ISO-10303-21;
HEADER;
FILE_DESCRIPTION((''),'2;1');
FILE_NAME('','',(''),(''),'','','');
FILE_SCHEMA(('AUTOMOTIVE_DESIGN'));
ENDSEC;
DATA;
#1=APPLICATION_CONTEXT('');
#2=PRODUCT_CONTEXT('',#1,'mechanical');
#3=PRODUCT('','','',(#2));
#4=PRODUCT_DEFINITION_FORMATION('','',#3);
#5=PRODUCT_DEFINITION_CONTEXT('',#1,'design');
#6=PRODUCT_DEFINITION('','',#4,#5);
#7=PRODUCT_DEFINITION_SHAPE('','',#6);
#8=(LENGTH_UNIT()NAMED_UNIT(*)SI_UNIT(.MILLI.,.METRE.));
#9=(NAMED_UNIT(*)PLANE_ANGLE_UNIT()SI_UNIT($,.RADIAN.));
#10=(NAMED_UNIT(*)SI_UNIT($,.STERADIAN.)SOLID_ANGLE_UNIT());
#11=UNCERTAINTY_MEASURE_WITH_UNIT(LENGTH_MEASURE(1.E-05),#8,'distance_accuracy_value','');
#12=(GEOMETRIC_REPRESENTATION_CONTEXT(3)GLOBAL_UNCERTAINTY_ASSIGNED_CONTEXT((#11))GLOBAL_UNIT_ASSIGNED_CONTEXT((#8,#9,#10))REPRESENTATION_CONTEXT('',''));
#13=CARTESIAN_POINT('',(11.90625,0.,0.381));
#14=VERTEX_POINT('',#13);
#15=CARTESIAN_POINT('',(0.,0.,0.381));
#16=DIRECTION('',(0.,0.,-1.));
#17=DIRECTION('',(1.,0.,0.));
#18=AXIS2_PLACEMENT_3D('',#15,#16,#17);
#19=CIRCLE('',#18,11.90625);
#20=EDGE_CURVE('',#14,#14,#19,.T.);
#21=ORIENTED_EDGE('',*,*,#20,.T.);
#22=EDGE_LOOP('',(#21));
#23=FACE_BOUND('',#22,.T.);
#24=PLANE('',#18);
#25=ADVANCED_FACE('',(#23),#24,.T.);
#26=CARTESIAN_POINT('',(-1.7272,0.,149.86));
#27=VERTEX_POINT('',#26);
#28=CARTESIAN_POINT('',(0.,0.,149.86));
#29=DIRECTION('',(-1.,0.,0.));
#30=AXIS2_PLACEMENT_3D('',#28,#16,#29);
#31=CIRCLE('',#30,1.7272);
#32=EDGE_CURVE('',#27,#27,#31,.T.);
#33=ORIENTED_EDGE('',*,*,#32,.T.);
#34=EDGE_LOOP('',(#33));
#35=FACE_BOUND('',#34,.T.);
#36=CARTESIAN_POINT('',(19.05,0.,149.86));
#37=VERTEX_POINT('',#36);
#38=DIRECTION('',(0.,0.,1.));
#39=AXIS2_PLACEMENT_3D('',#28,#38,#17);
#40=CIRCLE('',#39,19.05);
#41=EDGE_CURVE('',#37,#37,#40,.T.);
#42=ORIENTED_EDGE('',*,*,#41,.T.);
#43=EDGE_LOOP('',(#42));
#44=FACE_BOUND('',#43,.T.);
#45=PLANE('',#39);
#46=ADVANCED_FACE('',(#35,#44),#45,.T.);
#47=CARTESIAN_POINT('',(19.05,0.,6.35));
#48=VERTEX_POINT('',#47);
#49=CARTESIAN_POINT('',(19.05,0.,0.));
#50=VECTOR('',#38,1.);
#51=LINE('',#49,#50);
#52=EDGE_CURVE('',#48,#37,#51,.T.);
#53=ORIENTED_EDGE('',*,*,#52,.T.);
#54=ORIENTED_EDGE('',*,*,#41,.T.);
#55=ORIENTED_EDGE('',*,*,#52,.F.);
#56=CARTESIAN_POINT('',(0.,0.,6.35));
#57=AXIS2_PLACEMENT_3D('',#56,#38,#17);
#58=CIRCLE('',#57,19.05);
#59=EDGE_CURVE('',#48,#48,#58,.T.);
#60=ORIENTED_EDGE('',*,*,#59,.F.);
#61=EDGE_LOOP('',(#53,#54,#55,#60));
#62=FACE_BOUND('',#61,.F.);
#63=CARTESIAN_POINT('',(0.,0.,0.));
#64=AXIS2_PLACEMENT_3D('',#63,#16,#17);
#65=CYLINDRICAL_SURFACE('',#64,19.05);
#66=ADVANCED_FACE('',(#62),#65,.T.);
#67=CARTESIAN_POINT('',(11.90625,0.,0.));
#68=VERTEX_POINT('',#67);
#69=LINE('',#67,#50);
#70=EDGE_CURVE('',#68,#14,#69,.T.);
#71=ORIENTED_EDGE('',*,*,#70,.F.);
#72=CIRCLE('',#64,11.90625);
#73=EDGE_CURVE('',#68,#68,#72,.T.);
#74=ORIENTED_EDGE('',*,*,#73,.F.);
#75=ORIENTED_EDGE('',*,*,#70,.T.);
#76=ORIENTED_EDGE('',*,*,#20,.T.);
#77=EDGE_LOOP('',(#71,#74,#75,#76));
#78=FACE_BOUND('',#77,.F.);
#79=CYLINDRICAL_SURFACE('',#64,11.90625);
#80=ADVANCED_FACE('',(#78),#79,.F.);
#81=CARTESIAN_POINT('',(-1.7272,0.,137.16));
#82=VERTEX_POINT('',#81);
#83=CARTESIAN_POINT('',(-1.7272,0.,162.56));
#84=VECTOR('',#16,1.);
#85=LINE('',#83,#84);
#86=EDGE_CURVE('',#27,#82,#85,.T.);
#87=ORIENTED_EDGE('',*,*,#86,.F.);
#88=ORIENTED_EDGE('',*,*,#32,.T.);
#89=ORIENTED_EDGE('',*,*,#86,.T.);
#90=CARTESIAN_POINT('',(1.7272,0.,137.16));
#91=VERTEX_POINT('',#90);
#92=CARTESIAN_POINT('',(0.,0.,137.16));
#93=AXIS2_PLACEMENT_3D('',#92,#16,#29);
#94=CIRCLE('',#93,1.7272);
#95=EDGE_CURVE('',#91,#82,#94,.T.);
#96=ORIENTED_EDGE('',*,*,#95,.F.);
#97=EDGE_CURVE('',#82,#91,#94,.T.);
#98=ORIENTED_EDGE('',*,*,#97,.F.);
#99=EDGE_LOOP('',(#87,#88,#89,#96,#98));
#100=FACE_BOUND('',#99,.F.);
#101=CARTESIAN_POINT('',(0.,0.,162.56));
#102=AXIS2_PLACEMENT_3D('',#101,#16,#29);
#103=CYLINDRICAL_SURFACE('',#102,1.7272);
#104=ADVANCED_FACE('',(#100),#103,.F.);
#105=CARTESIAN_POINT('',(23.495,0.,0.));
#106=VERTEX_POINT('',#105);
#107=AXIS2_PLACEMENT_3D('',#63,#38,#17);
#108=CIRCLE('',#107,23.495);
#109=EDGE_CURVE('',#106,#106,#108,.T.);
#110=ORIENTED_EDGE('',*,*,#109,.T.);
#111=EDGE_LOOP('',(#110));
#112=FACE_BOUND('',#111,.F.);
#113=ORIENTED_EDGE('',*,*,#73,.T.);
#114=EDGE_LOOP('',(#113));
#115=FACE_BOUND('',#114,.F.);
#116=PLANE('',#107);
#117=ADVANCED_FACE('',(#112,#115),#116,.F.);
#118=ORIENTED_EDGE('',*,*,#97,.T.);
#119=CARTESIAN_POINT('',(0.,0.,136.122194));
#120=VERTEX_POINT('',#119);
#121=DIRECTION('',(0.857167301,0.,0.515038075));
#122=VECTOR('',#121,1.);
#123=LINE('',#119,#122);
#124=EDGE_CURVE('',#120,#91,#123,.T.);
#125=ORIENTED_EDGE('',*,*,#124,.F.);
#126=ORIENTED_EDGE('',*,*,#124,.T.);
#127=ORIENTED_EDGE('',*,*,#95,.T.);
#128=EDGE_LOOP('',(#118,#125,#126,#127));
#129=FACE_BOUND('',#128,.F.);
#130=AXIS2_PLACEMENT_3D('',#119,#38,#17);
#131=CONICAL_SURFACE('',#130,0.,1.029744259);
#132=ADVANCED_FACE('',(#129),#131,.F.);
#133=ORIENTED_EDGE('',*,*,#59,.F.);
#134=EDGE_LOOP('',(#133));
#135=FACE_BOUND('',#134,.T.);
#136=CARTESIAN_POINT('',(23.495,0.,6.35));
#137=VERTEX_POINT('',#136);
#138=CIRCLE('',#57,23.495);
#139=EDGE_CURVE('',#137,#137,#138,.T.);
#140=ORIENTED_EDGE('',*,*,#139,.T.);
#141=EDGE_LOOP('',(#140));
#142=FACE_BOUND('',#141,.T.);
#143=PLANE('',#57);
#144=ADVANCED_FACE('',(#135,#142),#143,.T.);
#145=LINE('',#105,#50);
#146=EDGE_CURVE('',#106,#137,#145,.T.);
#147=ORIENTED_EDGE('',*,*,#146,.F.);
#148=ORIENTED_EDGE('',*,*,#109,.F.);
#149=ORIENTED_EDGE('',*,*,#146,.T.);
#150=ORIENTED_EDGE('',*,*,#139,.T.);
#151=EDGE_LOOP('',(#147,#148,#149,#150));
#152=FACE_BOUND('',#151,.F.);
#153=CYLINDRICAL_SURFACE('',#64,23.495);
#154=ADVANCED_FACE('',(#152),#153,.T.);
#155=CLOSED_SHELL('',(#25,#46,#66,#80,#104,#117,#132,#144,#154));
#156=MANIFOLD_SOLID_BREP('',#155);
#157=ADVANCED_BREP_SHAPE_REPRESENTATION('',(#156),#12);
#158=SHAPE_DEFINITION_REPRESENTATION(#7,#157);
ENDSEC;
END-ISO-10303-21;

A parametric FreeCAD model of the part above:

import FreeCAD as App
import Part
import Sketcher
from FreeCAD import Vector
Q = App.Units.Quantity

doc = App.newDocument("Part")
body = doc.addObject("PartDesign::Body", "Body")

sketch1 = body.newObject("Sketcher::SketchObject", "Sketch")
sketch1.AttachmentSupport = (doc.getObject("XY_Plane"), [""])
sketch1.MapMode = "FlatFace"
sketch1.addGeometry([
    Part.Circle(Vector(0, 0, 0), Vector(0, 0, 1), 23.495),
    Part.Circle(Vector(0, 0, 0), Vector(0, 0, 1), 19.05),
], False)
sketch1.addConstraint([
    Sketcher.Constraint("Coincident", 0, 3, -1, 1),
    Sketcher.Constraint("Coincident", 1, 3, -1, 1),
    Sketcher.Constraint("Diameter", 1, Q("1.5 in")),
    Sketcher.Constraint("Diameter", 0, Q("1.85 in")),
])
pad1 = body.newObject("PartDesign::Pad", "Pad")
pad1.Profile = sketch1
pad1.Length = Q("0.25 in")

sketch2 = body.newObject("Sketcher::SketchObject", "Sketch001")
sketch2.AttachmentSupport = (doc.getObject("XY_Plane"), [""])
sketch2.MapMode = "FlatFace"
sketch2.addGeometry(Part.Circle(Vector(0, 0, 0), Vector(0, 0, 1), 19.05), False)
sketch2.addConstraint([
    Sketcher.Constraint("Coincident", 0, 3, -1, 1),
    Sketcher.Constraint("Diameter", 0, Q("1.5 in")),
])
pad2 = body.newObject("PartDesign::Pad", "Pad001")
pad2.Profile = sketch2
pad2.Length = Q("5.9 in")

sketch3 = body.newObject("Sketcher::SketchObject", "Sketch002")
sketch3.AttachmentSupport = (doc.getObject("XY_Plane"), [""])
sketch3.MapMode = "FlatFace"
sketch3.AttachmentOffset = App.Placement(Vector(0, 0, 5.9 * 25.4), App.Rotation())
sketch3.addGeometry(Part.Circle(Vector(0, 0, 0), Vector(0, 0, 1), 1.7272), False)
sketch3.addConstraint([
    Sketcher.Constraint("Coincident", 0, 3, -1, 1),
    Sketcher.Constraint("Diameter", 0, Q("0.136 in")),
])
doc.recompute()
hole = body.newObject("PartDesign::Hole", "Hole")
hole.Profile = sketch3
hole.ThreadType = "None"
hole.Diameter = Q("0.136 in")
hole.DepthType = "Dimension"
hole.Depth = Q("0.5 in")
hole.DrillPoint = "Angled"
hole.DrillPointAngle = 118
body2 = doc.addObject("PartDesign::Body", "Body001")
doc.recompute()

body2.BaseFeature = body
doc.recompute()

sketch4 = body.newObject("Sketcher::SketchObject", "Sketch003")
sketch4.AttachmentSupport = (doc.getObject("XY_Plane"), [""])
sketch4.MapMode = "FlatFace"
sketch4.addGeometry(Part.Circle(Vector(0, 0, 0), Vector(0, 0, 1), 11.90625), False)
sketch4.addConstraint([
    Sketcher.Constraint("Coincident", 0, 3, -1, 1),
    Sketcher.Constraint("Diameter", 0, Q("0.9375 in")),
])
pocket1 = body.newObject("PartDesign::Pocket", "Pocket")
pocket1.Profile = sketch4
pocket1.Length = Q("0.015 in")
pocket1.Reversed = True
body.Visibility = False

doc.recompute()
